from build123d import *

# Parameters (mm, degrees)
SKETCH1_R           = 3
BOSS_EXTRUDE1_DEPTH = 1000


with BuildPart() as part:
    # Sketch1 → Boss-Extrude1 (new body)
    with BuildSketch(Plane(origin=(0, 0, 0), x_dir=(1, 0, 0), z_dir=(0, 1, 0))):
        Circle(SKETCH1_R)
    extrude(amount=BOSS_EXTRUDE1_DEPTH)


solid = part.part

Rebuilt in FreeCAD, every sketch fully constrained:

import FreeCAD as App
import Part
import Sketcher

V = App.Vector
Q = App.Units.Quantity

doc = App.newDocument("Part")
body = doc.addObject("PartDesign::Body", "Body")

sketch1 = body.newObject("Sketcher::SketchObject", "Sketch")
sketch1.AttachmentSupport = (doc.getObject("XZ_Plane"), [""])
sketch1.MapMode = "FlatFace"
sketch1.addGeometry(Part.Circle(V(0, 0, 0), V(0, 0, 1), 3), False)
sketch1.addConstraint([
    Sketcher.Constraint("Coincident", 0, 3, -1, 1),
    Sketcher.Constraint("Diameter", 0, Q("6 mm")),
])
pad1 = body.newObject("PartDesign::Pad", "Pad")
pad1.Profile = sketch1
pad1.Length = 1000
pad1.Reversed = True

doc.recompute()
